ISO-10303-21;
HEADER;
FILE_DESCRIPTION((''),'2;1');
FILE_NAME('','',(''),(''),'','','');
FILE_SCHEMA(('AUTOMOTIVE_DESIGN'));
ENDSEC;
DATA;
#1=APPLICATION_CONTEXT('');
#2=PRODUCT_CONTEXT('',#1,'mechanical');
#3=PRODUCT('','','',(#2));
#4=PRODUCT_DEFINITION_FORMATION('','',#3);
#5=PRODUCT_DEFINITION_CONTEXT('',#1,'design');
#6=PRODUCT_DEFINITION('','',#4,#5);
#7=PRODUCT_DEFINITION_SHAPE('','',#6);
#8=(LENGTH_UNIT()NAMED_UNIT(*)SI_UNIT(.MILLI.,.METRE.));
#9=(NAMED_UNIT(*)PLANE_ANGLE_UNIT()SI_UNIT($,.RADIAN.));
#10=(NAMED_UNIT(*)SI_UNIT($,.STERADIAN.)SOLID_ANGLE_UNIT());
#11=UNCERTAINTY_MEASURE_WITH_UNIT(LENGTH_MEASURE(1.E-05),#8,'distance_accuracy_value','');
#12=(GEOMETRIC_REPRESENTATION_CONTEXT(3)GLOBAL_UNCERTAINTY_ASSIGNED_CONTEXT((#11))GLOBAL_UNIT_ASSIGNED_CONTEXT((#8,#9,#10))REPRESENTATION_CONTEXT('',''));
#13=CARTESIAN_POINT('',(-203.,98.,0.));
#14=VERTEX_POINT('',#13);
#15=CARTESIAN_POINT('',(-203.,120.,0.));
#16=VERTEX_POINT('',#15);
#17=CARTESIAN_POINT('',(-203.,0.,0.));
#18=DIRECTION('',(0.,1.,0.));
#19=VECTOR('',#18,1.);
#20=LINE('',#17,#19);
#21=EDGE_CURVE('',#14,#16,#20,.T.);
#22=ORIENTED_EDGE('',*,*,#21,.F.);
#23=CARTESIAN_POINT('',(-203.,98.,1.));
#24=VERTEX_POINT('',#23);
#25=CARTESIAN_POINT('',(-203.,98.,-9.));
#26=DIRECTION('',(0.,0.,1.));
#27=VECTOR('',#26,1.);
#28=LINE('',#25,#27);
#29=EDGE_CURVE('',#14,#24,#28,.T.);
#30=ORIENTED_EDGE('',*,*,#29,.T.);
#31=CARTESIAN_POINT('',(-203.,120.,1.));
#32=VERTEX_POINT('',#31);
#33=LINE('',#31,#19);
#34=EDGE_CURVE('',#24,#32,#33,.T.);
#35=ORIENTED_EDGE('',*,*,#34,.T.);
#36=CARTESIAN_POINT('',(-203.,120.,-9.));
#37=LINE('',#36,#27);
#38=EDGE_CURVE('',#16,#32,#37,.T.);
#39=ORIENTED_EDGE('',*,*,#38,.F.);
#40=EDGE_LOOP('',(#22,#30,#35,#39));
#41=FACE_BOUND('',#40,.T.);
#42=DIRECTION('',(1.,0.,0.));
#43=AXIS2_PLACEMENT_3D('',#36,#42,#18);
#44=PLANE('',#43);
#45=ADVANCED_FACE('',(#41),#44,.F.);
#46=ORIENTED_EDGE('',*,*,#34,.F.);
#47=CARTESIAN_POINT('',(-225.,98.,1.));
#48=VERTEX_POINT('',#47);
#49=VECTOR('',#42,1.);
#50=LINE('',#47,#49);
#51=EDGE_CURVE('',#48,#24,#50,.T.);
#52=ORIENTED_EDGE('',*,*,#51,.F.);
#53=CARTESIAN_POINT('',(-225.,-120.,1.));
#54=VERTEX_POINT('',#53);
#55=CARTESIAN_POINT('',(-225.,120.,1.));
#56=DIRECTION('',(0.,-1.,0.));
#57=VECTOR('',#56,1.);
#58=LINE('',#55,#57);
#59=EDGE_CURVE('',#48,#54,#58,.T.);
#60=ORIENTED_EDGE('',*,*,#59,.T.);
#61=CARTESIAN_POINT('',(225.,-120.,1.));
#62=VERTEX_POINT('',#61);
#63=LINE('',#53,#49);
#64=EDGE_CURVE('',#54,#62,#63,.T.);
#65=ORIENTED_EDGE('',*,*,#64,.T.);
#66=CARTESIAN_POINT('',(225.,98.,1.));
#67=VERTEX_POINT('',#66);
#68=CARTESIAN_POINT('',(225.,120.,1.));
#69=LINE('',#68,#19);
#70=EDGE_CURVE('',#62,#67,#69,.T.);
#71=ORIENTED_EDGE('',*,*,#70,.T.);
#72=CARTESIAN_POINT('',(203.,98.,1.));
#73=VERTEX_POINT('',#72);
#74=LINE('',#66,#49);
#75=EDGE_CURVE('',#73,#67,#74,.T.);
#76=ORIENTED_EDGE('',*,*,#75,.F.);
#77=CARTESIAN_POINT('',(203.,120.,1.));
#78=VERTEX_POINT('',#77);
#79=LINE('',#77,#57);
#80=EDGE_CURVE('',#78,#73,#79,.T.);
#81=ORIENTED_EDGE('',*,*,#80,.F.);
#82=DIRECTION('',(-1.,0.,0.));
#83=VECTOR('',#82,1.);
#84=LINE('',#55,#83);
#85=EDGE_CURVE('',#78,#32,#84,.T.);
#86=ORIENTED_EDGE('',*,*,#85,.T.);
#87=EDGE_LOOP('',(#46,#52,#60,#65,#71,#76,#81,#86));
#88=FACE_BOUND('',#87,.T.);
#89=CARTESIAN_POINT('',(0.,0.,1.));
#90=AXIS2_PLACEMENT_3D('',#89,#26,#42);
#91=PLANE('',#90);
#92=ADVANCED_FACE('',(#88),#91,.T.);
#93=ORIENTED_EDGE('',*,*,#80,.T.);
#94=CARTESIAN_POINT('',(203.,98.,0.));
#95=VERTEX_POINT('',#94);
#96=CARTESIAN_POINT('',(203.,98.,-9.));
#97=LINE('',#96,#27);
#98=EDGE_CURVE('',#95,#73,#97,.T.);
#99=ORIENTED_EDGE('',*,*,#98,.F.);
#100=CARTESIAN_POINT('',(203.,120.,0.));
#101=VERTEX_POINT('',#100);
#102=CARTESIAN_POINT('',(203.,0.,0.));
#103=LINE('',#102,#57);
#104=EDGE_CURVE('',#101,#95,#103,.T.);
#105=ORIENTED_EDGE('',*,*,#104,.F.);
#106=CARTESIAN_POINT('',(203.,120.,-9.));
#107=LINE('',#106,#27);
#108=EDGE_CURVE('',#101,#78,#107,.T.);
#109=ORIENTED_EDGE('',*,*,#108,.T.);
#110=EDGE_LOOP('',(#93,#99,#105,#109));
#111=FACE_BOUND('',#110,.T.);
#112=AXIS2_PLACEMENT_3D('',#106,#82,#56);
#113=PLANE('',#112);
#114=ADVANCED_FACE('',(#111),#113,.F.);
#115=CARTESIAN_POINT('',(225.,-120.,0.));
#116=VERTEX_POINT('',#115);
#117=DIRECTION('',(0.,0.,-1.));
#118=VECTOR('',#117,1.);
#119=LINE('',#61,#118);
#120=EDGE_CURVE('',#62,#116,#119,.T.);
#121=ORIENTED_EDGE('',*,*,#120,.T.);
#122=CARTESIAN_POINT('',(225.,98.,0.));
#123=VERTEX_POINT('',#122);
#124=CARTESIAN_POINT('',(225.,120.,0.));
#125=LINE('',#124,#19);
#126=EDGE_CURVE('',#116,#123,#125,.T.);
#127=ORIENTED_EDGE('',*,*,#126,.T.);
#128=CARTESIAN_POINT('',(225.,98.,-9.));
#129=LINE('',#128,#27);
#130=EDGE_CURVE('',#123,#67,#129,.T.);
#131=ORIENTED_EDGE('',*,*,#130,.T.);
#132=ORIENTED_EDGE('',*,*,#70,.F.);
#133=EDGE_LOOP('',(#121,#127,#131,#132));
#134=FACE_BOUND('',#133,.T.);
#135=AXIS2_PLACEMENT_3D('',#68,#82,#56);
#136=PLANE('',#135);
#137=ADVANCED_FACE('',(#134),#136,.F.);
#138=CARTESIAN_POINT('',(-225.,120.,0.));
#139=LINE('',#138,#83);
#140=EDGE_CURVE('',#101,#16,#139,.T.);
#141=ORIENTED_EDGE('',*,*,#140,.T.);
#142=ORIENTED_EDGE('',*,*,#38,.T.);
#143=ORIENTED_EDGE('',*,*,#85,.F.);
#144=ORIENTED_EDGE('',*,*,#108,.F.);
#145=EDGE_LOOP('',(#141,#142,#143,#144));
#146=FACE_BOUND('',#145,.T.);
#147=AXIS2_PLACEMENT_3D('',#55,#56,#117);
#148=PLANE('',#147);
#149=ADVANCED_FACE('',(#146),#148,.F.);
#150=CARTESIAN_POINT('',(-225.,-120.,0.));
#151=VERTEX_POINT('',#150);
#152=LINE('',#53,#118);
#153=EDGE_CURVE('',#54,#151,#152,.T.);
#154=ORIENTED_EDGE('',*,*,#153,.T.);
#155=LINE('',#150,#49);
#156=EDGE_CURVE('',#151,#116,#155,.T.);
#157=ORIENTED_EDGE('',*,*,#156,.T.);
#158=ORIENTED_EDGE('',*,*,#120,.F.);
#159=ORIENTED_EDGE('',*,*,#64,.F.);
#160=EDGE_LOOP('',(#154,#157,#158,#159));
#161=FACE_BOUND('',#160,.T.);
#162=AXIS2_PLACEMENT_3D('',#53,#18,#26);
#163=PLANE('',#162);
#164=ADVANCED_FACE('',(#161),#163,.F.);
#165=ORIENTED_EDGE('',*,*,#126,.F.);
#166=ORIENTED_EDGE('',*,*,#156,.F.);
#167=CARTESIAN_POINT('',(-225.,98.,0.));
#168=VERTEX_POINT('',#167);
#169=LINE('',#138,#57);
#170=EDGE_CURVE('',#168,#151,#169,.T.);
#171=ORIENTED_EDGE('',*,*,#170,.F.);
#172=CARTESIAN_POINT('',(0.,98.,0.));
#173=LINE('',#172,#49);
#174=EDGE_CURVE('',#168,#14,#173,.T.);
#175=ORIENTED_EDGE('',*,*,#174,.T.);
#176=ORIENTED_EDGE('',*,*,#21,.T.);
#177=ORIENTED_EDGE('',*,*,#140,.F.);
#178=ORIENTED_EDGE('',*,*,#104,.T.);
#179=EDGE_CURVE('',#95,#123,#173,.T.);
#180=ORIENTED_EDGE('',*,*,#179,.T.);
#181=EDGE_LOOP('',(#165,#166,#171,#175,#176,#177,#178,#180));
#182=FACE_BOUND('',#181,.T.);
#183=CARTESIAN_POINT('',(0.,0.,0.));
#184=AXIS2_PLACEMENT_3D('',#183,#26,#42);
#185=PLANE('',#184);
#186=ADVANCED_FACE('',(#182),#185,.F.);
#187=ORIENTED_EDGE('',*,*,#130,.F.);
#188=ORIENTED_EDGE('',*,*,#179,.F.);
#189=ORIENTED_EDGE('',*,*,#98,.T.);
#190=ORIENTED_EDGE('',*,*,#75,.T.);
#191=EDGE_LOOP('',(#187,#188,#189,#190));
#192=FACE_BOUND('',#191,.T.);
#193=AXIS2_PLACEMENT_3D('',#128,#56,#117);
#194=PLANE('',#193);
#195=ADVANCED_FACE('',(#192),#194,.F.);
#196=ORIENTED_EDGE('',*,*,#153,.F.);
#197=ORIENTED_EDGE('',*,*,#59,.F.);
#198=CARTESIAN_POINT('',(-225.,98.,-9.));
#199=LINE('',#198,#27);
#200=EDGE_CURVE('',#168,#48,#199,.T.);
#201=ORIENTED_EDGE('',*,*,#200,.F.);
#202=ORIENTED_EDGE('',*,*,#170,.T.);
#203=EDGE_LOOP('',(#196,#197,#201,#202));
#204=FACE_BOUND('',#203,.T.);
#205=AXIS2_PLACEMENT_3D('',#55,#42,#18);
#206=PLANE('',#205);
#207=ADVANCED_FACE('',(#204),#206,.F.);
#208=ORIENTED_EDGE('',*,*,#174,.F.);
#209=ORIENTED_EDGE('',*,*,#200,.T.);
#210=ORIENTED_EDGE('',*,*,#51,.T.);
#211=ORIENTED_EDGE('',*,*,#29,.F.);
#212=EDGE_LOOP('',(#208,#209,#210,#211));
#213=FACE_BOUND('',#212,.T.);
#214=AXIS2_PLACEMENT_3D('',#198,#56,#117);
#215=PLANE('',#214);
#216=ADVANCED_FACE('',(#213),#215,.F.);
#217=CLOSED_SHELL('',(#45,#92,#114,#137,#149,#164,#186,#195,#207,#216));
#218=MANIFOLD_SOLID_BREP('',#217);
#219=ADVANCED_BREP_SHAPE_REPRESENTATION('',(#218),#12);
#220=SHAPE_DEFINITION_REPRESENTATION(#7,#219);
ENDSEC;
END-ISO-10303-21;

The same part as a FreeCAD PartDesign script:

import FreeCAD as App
import Part
import Sketcher

V = App.Vector
Q = App.Units.Quantity

doc = App.newDocument("Part")
body = doc.addObject("PartDesign::Body", "Body")

# Sketch on XY plane
sketch1 = body.newObject("Sketcher::SketchObject", "Sketch")
sketch1.AttachmentSupport = (doc.getObject("XY_Plane"), [""])
sketch1.MapMode = "FlatFace"
sketch1.addGeometry([
    Part.LineSegment(V(-225, 120, 0), V(-225, -120, 0)),
    Part.LineSegment(V(-225, -120, 0), V(225, -120, 0)),
    Part.LineSegment(V(225, -120, 0), V(225, 120, 0)),
    Part.LineSegment(V(225, 120, 0), V(-225, 120, 0)),
], False)
sketch1.addConstraint([
    Sketcher.Constraint("Coincident", 0, 2, 1, 1),
    Sketcher.Constraint("Coincident", 1, 2, 2, 1),
    Sketcher.Constraint("Coincident", 2, 2, 3, 1),
    Sketcher.Constraint("Coincident", 3, 2, 0, 1),
    Sketcher.Constraint("Vertical", 0),
    Sketcher.Constraint("Horizontal", 1),
    Sketcher.Constraint("Vertical", 2),
    Sketcher.Constraint("Horizontal", 3),
    Sketcher.Constraint("Symmetric", 0, 2, 2, 2, -1, 1),
    Sketcher.Constraint("DistanceX", 1, 1, 1, 2, Q("450 mm")),
    Sketcher.Constraint("DistanceY", 0, 2, 0, 1, Q("240 mm")),
])
pad1 = body.newObject("PartDesign::Pad", "Pad")
pad1.Profile = sketch1
pad1.Length = 1

# Sketch on XY plane
sketch2 = body.newObject("Sketcher::SketchObject", "Sketch001")
sketch2.AttachmentSupport = (doc.getObject("XY_Plane"), [""])
sketch2.MapMode = "FlatFace"
sketch2.AttachmentOffset = App.Placement(V(0, 0, 1), App.Rotation())
sketch2.addGeometry([
    Part.LineSegment(V(-225, 120, 0), V(-225, 98, 0)),  # 0
    Part.LineSegment(V(-225, 98, 0), V(-203, 98, 0)),  # 1
    Part.LineSegment(V(-203, 98, 0), V(-203, 120, 0)),  # 2
    Part.LineSegment(V(-203, 120, 0), V(-225, 120, 0)),  # 3
    Part.LineSegment(V(203, 120, 0), V(203, 98, 0)),  # 4
    Part.LineSegment(V(203, 98, 0), V(225, 98, 0)),  # 5
    Part.LineSegment(V(225, 98, 0), V(225, 120, 0)),  # 6
    Part.LineSegment(V(225, 120, 0), V(203, 120, 0)),  # 7
], False)
sketch2.addConstraint([
    Sketcher.Constraint("Coincident", 0, 2, 1, 1),
    Sketcher.Constraint("Coincident", 1, 2, 2, 1),
    Sketcher.Constraint("Coincident", 2, 2, 3, 1),
    Sketcher.Constraint("Coincident", 3, 2, 0, 1),
    Sketcher.Constraint("Coincident", 4, 2, 5, 1),
    Sketcher.Constraint("Coincident", 5, 2, 6, 1),
    Sketcher.Constraint("Coincident", 6, 2, 7, 1),
    Sketcher.Constraint("Coincident", 7, 2, 4, 1),
    Sketcher.Constraint("Vertical", 0),
    Sketcher.Constraint("Horizontal", 1),
    Sketcher.Constraint("Vertical", 2),
    Sketcher.Constraint("Horizontal", 3),
    Sketcher.Constraint("Vertical", 4),
    Sketcher.Constraint("Horizontal", 5),
    Sketcher.Constraint("Vertical", 6),
    Sketcher.Constraint("Horizontal", 7),
    Sketcher.Constraint("Symmetric", 1, 2, 4, 2, -2),
    Sketcher.Constraint("Symmetric", 3, 2, 6, 2, -2),
    Sketcher.Constraint("Equal", 7, 0),
    Sketcher.Constraint("DistanceX", 1, 1, 1, 2, Q("22 mm")),
    Sketcher.Constraint("DistanceX", 0, 2, -1, 1, Q("225 mm")),
    Sketcher.Constraint("DistanceY", -1, 1, 0, 2, Q("98 mm")),
])
pocket1 = body.newObject("PartDesign::Pocket", "Pocket")
pocket1.Profile = sketch2
pocket1.Length = 10

doc.recompute()
